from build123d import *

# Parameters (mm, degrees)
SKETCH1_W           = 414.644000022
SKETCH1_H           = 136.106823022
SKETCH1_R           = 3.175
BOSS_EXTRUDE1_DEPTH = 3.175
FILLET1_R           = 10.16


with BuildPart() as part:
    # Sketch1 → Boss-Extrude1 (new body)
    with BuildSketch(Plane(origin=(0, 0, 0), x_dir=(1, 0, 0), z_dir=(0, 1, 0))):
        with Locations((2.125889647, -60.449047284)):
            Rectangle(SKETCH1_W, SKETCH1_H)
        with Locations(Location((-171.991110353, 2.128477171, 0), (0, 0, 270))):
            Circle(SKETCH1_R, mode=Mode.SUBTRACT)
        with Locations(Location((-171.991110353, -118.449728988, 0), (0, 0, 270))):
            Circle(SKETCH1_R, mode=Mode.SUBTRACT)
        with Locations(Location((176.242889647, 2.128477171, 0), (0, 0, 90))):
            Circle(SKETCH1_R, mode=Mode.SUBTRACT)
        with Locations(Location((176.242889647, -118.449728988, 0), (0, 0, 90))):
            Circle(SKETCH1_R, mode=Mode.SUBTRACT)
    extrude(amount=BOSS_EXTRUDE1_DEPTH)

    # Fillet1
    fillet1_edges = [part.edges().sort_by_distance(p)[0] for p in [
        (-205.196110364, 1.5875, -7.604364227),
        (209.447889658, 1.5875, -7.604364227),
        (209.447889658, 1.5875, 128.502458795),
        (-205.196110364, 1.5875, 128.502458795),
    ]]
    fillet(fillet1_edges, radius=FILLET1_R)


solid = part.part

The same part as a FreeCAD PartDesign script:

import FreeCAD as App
import Part
import Sketcher
Q = App.Units.Quantity


def edges_at(feature, points):
    """Names of the edges that pass closest to the given points."""
    edges = feature.Shape.Edges
    near = lambda p: min(range(len(edges)), key=lambda i: edges[i].distToShape(Part.Vertex(*p))[0])
    return sorted({f"Edge{near(p) + 1}" for p in points})

doc = App.newDocument("Part")
body = doc.addObject("PartDesign::Body", "Body")

# Sketch on XZ plane
sketch1 = body.newObject("Sketcher::SketchObject", "Sketch")
sketch1.AttachmentSupport = (doc.getObject("XZ_Plane"), [""])
sketch1.MapMode = "FlatFace"
sketch1.addGeometry([
    Part.LineSegment(App.Vector(-205.2, -7.6, 0), App.Vector(-205.2, 128.5, 0)),  # 0
    Part.LineSegment(App.Vector(-205.2, 128.5, 0), App.Vector(209.4, 128.5, 0)),  # 1
    Part.LineSegment(App.Vector(209.4, 128.5, 0), App.Vector(209.4, -7.6, 0)),  # 2
    Part.LineSegment(App.Vector(209.4, -7.6, 0), App.Vector(-205.2, -7.6, 0)),  # 3
    Part.Circle(App.Vector(-172, 118.4, 0), App.Vector(0, 0, 1), 3.2),  # 4
    Part.Circle(App.Vector(176.2, 118.4, 0), App.Vector(0, 0, 1), 3.2),  # 5
    Part.Circle(App.Vector(-172, -2.1, 0), App.Vector(0, 0, 1), 3.2),  # 6
    Part.Circle(App.Vector(176.2, -2.1, 0), App.Vector(0, 0, 1), 3.2),  # 7
], False)
sketch1.addConstraint([
    Sketcher.Constraint("Coincident", 0, 2, 1, 1),
    Sketcher.Constraint("Coincident", 1, 2, 2, 1),
    Sketcher.Constraint("Coincident", 2, 2, 3, 1),
    Sketcher.Constraint("Coincident", 3, 2, 0, 1),
    Sketcher.Constraint("Vertical", 0),
    Sketcher.Constraint("Horizontal", 1),
    Sketcher.Constraint("Vertical", 2),
    Sketcher.Constraint("Horizontal", 3),
    Sketcher.Constraint("Equal", 4, 5),
    Sketcher.Constraint("Equal", 5, 6),
    Sketcher.Constraint("Equal", 6, 7),
    Sketcher.Constraint("Horizontal", 4, 3, 5, 3),
    Sketcher.Constraint("Horizontal", 6, 3, 7, 3),
    Sketcher.Constraint("Vertical", 4, 3, 6, 3),
    Sketcher.Constraint("Vertical", 5, 3, 7, 3),
    Sketcher.Constraint("Diameter", 4, Q("0.25 in")),
    Sketcher.Constraint("DistanceX", 4, 3, 5, 3, Q("13.71 in")),
    Sketcher.Constraint("DistanceX", 1, 1, 1, 2, Q("414.644 mm")),
    Sketcher.Constraint("DistanceX", 0, 2, 4, 3, Q("33.205 mm")),
    Sketcher.Constraint("DistanceY", 0, 1, 0, 2, Q("136.106823 mm")),
    Sketcher.Constraint("DistanceX", 4, 3, -1, 1, Q("171.99111 mm")),
    Sketcher.Constraint("DistanceY", -1, 1, 4, 3, Q("118.449729 mm")),
    Sketcher.Constraint("DistanceY", -1, 1, 0, 2, Q("128.502459 mm")),
    Sketcher.Constraint("DistanceY", 6, 3, -1, 1, Q("2.128477 mm")),
])
pad1 = body.newObject("PartDesign::Pad", "Pad")
pad1.Profile = sketch1
pad1.Length = Q("0.125 in")
pad1.Reversed = True
doc.recompute()

fillet = body.newObject("PartDesign::Fillet", "Fillet")
fillet.Base = (pad1, edges_at(pad1, [
    (-205.196, 1.587, -7.604),
    (209.448, 1.587, -7.604),
    (209.448, 1.587, 128.502),
    (-205.196, 1.587, 128.502),
]))
fillet.Radius = Q("0.4 in")

doc.recompute()
